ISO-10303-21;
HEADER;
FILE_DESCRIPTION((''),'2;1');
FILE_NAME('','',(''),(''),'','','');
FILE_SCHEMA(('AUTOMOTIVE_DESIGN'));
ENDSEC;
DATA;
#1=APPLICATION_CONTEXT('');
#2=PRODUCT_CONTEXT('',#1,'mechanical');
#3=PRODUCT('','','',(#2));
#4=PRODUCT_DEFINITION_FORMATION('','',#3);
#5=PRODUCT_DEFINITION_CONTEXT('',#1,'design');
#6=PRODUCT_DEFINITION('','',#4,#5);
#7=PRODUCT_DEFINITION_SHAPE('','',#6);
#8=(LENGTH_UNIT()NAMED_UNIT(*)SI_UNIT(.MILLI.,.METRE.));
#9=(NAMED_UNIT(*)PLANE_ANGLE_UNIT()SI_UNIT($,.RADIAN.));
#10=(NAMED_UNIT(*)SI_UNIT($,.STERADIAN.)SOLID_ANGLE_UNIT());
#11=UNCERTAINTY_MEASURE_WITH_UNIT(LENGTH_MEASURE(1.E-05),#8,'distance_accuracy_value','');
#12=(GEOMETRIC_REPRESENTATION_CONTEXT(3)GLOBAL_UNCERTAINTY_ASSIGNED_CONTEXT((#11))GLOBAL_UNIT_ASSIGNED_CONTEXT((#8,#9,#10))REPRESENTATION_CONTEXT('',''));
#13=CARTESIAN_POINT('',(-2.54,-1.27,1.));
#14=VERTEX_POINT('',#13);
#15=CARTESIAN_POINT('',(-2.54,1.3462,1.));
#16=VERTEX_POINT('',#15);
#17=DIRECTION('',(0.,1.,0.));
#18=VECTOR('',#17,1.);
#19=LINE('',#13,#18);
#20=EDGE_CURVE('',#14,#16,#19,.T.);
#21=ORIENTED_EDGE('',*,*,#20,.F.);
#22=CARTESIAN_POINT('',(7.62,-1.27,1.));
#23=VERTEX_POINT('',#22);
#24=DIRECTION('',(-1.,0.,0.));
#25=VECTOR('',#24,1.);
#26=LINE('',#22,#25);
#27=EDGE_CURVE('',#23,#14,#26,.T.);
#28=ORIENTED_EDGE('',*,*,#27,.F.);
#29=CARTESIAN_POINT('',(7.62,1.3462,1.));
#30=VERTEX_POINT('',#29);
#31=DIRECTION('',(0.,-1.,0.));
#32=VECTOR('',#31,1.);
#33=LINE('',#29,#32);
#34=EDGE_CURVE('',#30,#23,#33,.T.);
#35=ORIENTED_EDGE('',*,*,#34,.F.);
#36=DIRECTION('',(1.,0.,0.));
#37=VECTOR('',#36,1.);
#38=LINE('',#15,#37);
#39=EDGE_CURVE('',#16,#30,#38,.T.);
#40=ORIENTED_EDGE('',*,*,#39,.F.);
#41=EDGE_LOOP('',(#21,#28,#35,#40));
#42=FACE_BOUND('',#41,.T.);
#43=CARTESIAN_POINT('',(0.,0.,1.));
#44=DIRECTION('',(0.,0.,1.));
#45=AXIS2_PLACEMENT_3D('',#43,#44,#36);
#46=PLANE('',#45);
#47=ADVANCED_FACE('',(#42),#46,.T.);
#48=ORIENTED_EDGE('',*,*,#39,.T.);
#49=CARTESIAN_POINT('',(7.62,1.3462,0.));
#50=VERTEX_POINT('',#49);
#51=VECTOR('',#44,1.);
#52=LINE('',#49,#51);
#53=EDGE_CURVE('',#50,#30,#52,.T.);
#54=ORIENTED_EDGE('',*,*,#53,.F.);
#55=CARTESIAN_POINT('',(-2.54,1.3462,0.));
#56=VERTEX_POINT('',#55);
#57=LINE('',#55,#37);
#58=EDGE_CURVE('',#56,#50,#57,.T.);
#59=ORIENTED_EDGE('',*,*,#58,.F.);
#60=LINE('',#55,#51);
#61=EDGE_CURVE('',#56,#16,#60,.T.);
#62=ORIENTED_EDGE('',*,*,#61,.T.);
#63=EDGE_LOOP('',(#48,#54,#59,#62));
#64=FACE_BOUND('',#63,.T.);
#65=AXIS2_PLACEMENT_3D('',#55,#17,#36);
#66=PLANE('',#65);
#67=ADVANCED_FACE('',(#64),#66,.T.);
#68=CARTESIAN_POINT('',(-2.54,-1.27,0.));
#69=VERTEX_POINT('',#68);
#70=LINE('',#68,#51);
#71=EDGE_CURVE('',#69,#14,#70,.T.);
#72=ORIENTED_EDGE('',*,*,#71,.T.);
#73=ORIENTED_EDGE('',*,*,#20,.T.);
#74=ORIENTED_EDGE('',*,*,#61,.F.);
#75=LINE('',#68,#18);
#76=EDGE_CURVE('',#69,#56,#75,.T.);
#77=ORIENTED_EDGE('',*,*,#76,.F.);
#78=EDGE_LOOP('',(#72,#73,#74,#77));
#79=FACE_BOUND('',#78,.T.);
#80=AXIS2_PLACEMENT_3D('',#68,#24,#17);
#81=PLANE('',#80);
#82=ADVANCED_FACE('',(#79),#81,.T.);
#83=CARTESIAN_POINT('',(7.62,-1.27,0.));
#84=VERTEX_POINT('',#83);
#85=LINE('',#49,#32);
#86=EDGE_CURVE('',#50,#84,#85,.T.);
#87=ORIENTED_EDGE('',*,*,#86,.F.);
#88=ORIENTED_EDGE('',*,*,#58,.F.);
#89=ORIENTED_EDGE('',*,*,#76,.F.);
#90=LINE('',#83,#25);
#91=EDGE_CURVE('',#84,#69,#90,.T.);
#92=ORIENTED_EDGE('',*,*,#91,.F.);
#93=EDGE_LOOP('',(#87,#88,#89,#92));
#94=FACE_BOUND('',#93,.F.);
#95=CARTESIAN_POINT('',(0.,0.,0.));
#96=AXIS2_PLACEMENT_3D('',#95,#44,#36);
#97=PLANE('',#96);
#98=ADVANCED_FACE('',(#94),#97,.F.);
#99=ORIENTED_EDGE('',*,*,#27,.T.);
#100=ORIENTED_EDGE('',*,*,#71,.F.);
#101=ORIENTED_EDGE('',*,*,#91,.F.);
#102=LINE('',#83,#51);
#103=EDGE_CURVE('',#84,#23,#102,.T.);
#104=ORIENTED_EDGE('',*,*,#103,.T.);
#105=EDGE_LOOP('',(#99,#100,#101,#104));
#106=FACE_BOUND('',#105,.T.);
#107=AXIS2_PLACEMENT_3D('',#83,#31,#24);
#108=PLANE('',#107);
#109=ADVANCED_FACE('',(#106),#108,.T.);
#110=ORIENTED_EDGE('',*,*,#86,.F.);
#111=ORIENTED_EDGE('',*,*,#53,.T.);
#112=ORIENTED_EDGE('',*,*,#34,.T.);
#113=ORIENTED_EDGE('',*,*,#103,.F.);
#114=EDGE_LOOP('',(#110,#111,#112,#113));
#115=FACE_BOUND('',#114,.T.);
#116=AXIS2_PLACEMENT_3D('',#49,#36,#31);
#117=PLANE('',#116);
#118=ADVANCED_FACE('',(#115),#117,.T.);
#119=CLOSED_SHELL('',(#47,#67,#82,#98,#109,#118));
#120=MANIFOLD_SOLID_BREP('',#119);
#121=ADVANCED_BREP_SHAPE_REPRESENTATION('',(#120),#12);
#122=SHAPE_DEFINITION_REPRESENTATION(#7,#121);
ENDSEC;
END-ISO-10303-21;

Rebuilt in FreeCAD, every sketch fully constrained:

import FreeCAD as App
import Part
import Sketcher
from FreeCAD import Vector
Q = App.Units.Quantity

doc = App.newDocument("Part")
body = doc.addObject("PartDesign::Body", "Body")

# Sketch on XY plane
sketch1 = body.newObject("Sketcher::SketchObject", "Sketch")
sketch1.AttachmentSupport = (doc.getObject("XY_Plane"), [""])
sketch1.MapMode = "FlatFace"
sketch1.addGeometry([
    Part.LineSegment(Vector(7.6, 1.3, 0), Vector(-2.5, 1.3, 0)),
    Part.LineSegment(Vector(-2.5, 1.3, 0), Vector(-2.5, -1.3, 0)),
    Part.LineSegment(Vector(-2.5, -1.3, 0), Vector(7.6, -1.3, 0)),
    Part.LineSegment(Vector(7.6, -1.3, 0), Vector(7.6, 1.3, 0)),
], False)
sketch1.addConstraint([
    Sketcher.Constraint("Coincident", 0, 2, 1, 1),
    Sketcher.Constraint("Coincident", 1, 2, 2, 1),
    Sketcher.Constraint("Coincident", 2, 2, 3, 1),
    Sketcher.Constraint("Coincident", 3, 2, 0, 1),
    Sketcher.Constraint("Horizontal", 0),
    Sketcher.Constraint("Vertical", 1),
    Sketcher.Constraint("Horizontal", 2),
    Sketcher.Constraint("Vertical", 3),
    Sketcher.Constraint("DistanceX", 0, 2, 0, 1, Q("0.4 in")),
    Sketcher.Constraint("DistanceX", 0, 2, -1, 1, Q("0.1 in")),
    Sketcher.Constraint("DistanceY", 1, 2, 1, 1, Q("0.103 in")),
    Sketcher.Constraint("DistanceY", 1, 2, -1, 1, Q("0.05 in")),
])
pad1 = body.newObject("PartDesign::Pad", "Pad")
pad1.Profile = sketch1
pad1.Length = 1

doc.recompute()
